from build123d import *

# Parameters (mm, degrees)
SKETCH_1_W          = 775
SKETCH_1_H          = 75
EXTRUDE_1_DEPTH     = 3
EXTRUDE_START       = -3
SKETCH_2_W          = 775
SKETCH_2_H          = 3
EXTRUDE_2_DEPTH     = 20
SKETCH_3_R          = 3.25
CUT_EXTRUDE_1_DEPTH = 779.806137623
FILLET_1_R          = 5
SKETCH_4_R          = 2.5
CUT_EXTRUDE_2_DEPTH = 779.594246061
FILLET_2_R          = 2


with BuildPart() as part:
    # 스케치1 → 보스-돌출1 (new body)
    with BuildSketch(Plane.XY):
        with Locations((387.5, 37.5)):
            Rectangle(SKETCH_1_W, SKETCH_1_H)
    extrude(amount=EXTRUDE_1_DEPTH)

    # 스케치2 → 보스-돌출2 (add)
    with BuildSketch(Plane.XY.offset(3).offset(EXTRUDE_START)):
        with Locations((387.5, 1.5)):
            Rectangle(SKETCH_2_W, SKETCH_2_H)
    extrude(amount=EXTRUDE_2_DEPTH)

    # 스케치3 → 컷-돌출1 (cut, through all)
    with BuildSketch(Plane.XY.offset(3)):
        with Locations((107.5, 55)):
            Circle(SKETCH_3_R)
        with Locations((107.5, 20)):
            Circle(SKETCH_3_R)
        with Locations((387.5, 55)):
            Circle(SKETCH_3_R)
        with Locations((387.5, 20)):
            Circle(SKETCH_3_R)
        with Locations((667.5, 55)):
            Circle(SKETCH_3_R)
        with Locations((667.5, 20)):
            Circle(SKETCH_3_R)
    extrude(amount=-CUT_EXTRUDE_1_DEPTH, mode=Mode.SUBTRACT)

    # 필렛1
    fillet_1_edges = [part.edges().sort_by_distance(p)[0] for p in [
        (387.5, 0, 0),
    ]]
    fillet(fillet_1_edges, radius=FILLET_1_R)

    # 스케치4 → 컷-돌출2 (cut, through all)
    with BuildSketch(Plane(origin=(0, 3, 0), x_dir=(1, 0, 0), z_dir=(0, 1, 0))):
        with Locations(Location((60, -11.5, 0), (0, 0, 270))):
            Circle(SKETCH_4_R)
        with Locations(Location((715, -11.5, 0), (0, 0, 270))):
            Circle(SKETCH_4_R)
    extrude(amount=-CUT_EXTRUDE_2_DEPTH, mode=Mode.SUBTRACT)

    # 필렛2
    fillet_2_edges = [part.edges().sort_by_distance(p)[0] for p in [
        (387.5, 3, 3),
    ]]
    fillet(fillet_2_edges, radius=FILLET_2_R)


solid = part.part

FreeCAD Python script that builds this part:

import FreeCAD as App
import Part
import Sketcher

V = App.Vector
Q = App.Units.Quantity


def edges_at(feature, points):
    """Names of the edges that pass closest to the given points."""
    edges = feature.Shape.Edges
    near = lambda p: min(range(len(edges)), key=lambda i: edges[i].distToShape(Part.Vertex(*p))[0])
    return sorted({f"Edge{near(p) + 1}" for p in points})

doc = App.newDocument("Part")
body = doc.addObject("PartDesign::Body", "Body")

sketch1 = doc.addObject("Sketcher::SketchObject", "Sketch")
body.addObject(sketch1)
sketch1.AttachmentSupport = (doc.XY_Plane, [""])
sketch1.MapMode = "FlatFace"
sketch1.addGeometry([
    Part.LineSegment(V(0, 75, 0), V(0, 0, 0)),
    Part.LineSegment(V(0, 0, 0), V(775, 0, 0)),
    Part.LineSegment(V(775, 0, 0), V(775, 75, 0)),
    Part.LineSegment(V(775, 75, 0), V(0, 75, 0)),
], False)
sketch1.addConstraint([
    Sketcher.Constraint("Coincident", 0, 2, 1, 1),
    Sketcher.Constraint("Coincident", 1, 2, 2, 1),
    Sketcher.Constraint("Coincident", 2, 2, 3, 1),
    Sketcher.Constraint("Coincident", 3, 2, 0, 1),
    Sketcher.Constraint("Vertical", 0),
    Sketcher.Constraint("Horizontal", 1),
    Sketcher.Constraint("Vertical", 2),
    Sketcher.Constraint("Horizontal", 3),
    Sketcher.Constraint("Coincident", 0, 2, -1, 1),
    Sketcher.Constraint("DistanceX", 1, 1, 1, 2, Q("775 mm")),
    Sketcher.Constraint("DistanceY", 0, 2, 0, 1, Q("75 mm")),
])
pad1 = doc.addObject("PartDesign::Pad", "Pad")
body.addObject(pad1)
pad1.Profile = sketch1
pad1.Length = 3

sketch2 = doc.addObject("Sketcher::SketchObject", "Sketch001")
body.addObject(sketch2)
sketch2.AttachmentSupport = (doc.XY_Plane, [""])
sketch2.MapMode = "FlatFace"
sketch2.addGeometry([
    Part.LineSegment(V(0, 3, 0), V(0, 0, 0)),
    Part.LineSegment(V(0, 0, 0), V(775, 0, 0)),
    Part.LineSegment(V(775, 0, 0), V(775, 3, 0)),
    Part.LineSegment(V(775, 3, 0), V(0, 3, 0)),
], False)
sketch2.addConstraint([
    Sketcher.Constraint("Coincident", 0, 2, 1, 1),
    Sketcher.Constraint("Coincident", 1, 2, 2, 1),
    Sketcher.Constraint("Coincident", 2, 2, 3, 1),
    Sketcher.Constraint("Coincident", 3, 2, 0, 1),
    Sketcher.Constraint("Vertical", 0),
    Sketcher.Constraint("Horizontal", 1),
    Sketcher.Constraint("Vertical", 2),
    Sketcher.Constraint("Horizontal", 3),
    Sketcher.Constraint("Coincident", 0, 2, -1, 1),
    Sketcher.Constraint("DistanceX", 1, 1, 1, 2, Q("775 mm")),
    Sketcher.Constraint("DistanceY", 0, 2, 0, 1, Q("3 mm")),
])
pad2 = doc.addObject("PartDesign::Pad", "Pad001")
body.addObject(pad2)
pad2.Profile = sketch2
pad2.Length = 20

sketch3 = doc.addObject("Sketcher::SketchObject", "Sketch002")
body.addObject(sketch3)
sketch3.AttachmentSupport = (doc.XY_Plane, [""])
sketch3.MapMode = "FlatFace"
sketch3.AttachmentOffset = App.Placement(V(0, 0, 3), App.Rotation())
sketch3.addGeometry([
    Part.Circle(V(107.5, 55, 0), V(0, 0, 1), 3.2),
    Part.Circle(V(107.5, 20, 0), V(0, 0, 1), 3.2),
    Part.Circle(V(387.5, 55, 0), V(0, 0, 1), 3.2),
    Part.Circle(V(387.5, 20, 0), V(0, 0, 1), 3.2),
    Part.Circle(V(667.5, 55, 0), V(0, 0, 1), 3.2),
    Part.Circle(V(667.5, 20, 0), V(0, 0, 1), 3.2),
], False)
sketch3.addConstraint([
    Sketcher.Constraint("Equal", 0, 1),
    Sketcher.Constraint("Equal", 1, 2),
    Sketcher.Constraint("Equal", 2, 3),
    Sketcher.Constraint("Equal", 3, 4),
    Sketcher.Constraint("Equal", 4, 5),
    Sketcher.Constraint("Horizontal", 0, 3, 2, 3),
    Sketcher.Constraint("Horizontal", 1, 3, 3, 3),
    Sketcher.Constraint("Horizontal", 2, 3, 4, 3),
    Sketcher.Constraint("Horizontal", 3, 3, 5, 3),
    Sketcher.Constraint("Vertical", 0, 3, 1, 3),
    Sketcher.Constraint("Vertical", 2, 3, 3, 3),
    Sketcher.Constraint("Vertical", 4, 3, 5, 3),
    Sketcher.Constraint("Diameter", 0, Q("6.5 mm")),
    Sketcher.Constraint("DistanceY", -1, 1, 0, 3, Q("55 mm")),
    Sketcher.Constraint("DistanceY", -1, 1, 1, 3, Q("20 mm")),
    Sketcher.Constraint("DistanceX", 0, 3, 2, 3, Q("280 mm")),
    Sketcher.Constraint("DistanceX", 2, 3, 4, 3, Q("280 mm")),
    Sketcher.Constraint("DistanceX", -1, 1, 0, 3, Q("107.5 mm")),
])
pocket1 = doc.addObject("PartDesign::Pocket", "Pocket")
body.addObject(pocket1)
pocket1.Profile = sketch3
pocket1.Type = "ThroughAll"
doc.recompute()

fillet = doc.addObject("PartDesign::Fillet", "Fillet")
body.addObject(fillet)
fillet.Base = (pocket1, edges_at(pocket1, [(387.5, 0, 0)]))
fillet.Radius = 5

sketch4 = doc.addObject("Sketcher::SketchObject", "Sketch003")
body.addObject(sketch4)
sketch4.AttachmentSupport = (doc.XZ_Plane, [""])
sketch4.MapMode = "FlatFace"
sketch4.AttachmentOffset = App.Placement(V(0, 0, -3), App.Rotation())
sketch4.addGeometry([
    Part.Circle(V(60, 11.5, 0), V(0, 0, 1), 2.5),
    Part.Circle(V(715, 11.5, 0), V(0, 0, 1), 2.5),
], False)
sketch4.addConstraint([
    Sketcher.Constraint("Equal", 0, 1),
    Sketcher.Constraint("Horizontal", 0, 3, 1, 3),
    Sketcher.Constraint("Diameter", 0, Q("5 mm")),
    Sketcher.Constraint("DistanceX", -1, 1, 0, 3, Q("60 mm")),
    Sketcher.Constraint("DistanceX", -1, 1, 1, 3, Q("715 mm")),
    Sketcher.Constraint("DistanceY", -1, 1, 0, 3, Q("11.5 mm")),
])
pocket2 = doc.addObject("PartDesign::Pocket", "Pocket001")
body.addObject(pocket2)
pocket2.Profile = sketch4
pocket2.Type = "ThroughAll"
pocket2.Reversed = True
doc.recompute()

fillet2 = doc.addObject("PartDesign::Fillet", "Fillet001")
body.addObject(fillet2)
fillet2.Base = (pocket2, edges_at(pocket2, [(387.5, 3, 3)]))
fillet2.Radius = 2

doc.recompute()
